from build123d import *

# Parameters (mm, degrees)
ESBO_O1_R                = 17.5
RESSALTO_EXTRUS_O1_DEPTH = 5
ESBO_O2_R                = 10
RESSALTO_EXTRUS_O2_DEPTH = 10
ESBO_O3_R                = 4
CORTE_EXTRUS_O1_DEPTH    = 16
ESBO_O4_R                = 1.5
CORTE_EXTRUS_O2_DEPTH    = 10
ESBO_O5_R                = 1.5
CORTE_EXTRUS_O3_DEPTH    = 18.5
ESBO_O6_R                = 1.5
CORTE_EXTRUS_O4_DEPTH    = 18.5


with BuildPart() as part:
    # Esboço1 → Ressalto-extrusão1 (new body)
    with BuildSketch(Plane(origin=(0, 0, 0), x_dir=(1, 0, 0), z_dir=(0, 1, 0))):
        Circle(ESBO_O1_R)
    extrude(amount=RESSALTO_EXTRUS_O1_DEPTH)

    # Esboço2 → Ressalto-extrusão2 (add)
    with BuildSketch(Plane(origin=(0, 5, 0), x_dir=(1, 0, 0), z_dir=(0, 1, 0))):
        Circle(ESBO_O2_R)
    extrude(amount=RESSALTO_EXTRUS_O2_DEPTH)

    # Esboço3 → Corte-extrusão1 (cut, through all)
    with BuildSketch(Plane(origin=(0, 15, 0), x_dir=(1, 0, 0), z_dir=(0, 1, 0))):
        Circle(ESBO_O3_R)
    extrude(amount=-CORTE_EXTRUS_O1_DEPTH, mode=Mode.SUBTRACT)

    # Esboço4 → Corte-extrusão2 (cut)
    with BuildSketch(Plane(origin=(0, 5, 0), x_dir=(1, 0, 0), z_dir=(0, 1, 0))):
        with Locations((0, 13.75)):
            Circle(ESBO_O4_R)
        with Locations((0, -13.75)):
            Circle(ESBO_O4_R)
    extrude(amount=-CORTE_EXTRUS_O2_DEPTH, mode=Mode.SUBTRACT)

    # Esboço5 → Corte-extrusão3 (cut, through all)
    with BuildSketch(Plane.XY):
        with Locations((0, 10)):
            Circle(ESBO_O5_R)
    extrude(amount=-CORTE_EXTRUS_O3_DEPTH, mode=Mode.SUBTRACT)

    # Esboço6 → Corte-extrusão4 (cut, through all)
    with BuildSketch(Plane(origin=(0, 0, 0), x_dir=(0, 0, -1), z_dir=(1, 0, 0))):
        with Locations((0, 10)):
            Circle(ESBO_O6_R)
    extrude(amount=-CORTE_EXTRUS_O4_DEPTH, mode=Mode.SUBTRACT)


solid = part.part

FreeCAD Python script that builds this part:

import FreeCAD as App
import Part
import Sketcher

V = App.Vector
Q = App.Units.Quantity

doc = App.newDocument("Part")
body = doc.addObject("PartDesign::Body", "Body")

sketch1 = body.newObject("Sketcher::SketchObject", "Sketch")
sketch1.AttachmentSupport = (doc.getObject("XZ_Plane"), [""])
sketch1.MapMode = "FlatFace"
sketch1.addGeometry(Part.Circle(V(0, 0, 0), V(0, 0, 1), 18), False)
sketch1.addConstraint([
    Sketcher.Constraint("Coincident", 0, 3, -1, 1),
    Sketcher.Constraint("Diameter", 0, Q("35 mm")),
])
pad1 = body.newObject("PartDesign::Pad", "Pad")
pad1.Profile = sketch1
pad1.Length = 5
pad1.Reversed = True

sketch2 = body.newObject("Sketcher::SketchObject", "Sketch001")
sketch2.AttachmentSupport = (doc.getObject("XZ_Plane"), [""])
sketch2.MapMode = "FlatFace"
sketch2.AttachmentOffset = App.Placement(V(0, 0, -5), App.Rotation())
sketch2.addGeometry(Part.Circle(V(0, 0, 0), V(0, 0, 1), 10), False)
sketch2.addConstraint([
    Sketcher.Constraint("Coincident", 0, 3, -1, 1),
    Sketcher.Constraint("Diameter", 0, Q("20 mm")),
])
pad2 = body.newObject("PartDesign::Pad", "Pad001")
pad2.Profile = sketch2
pad2.Length = 10
pad2.Reversed = True

sketch3 = body.newObject("Sketcher::SketchObject", "Sketch002")
sketch3.AttachmentSupport = (doc.getObject("XZ_Plane"), [""])
sketch3.MapMode = "FlatFace"
sketch3.AttachmentOffset = App.Placement(V(0, 0, -15), App.Rotation())
sketch3.addGeometry(Part.Circle(V(0, 0, 0), V(0, 0, 1), 4), False)
sketch3.addConstraint([
    Sketcher.Constraint("Coincident", 0, 3, -1, 1),
    Sketcher.Constraint("Diameter", 0, Q("8 mm")),
])
pocket1 = body.newObject("PartDesign::Pocket", "Pocket")
pocket1.Profile = sketch3
pocket1.Type = "ThroughAll"
pocket1.Reversed = True

sketch4 = body.newObject("Sketcher::SketchObject", "Sketch003")
sketch4.AttachmentSupport = (doc.getObject("XZ_Plane"), [""])
sketch4.MapMode = "FlatFace"
sketch4.AttachmentOffset = App.Placement(V(0, 0, -5), App.Rotation())
sketch4.addGeometry([
    Part.Circle(V(0, -13.8, 0), V(0, 0, 1), 1.5),
    Part.Circle(V(0, 13.8, 0), V(0, 0, 1), 1.5),
], False)
sketch4.addConstraint([
    Sketcher.Constraint("Equal", 0, 1),
    Sketcher.Constraint("Symmetric", 0, 3, 1, 3, -1, 1),
    Sketcher.Constraint("PointOnObject", 0, 3, -2),
    Sketcher.Constraint("Diameter", 0, Q("3 mm")),
    Sketcher.Constraint("DistanceY", 0, 3, 1, 3, Q("27.5 mm")),
])
pocket2 = body.newObject("PartDesign::Pocket", "Pocket001")
pocket2.Profile = sketch4
pocket2.Length = 10
pocket2.Reversed = True

sketch5 = body.newObject("Sketcher::SketchObject", "Sketch004")
sketch5.AttachmentSupport = (doc.getObject("XY_Plane"), [""])
sketch5.MapMode = "FlatFace"
sketch5.addGeometry(Part.Circle(V(0, 10, 0), V(0, 0, 1), 1.5), False)
sketch5.addConstraint([
    Sketcher.Constraint("PointOnObject", 0, 3, -2),
    Sketcher.Constraint("Diameter", 0, Q("3 mm")),
    Sketcher.Constraint("DistanceY", -1, 1, 0, 3, Q("10 mm")),
])
pocket3 = body.newObject("PartDesign::Pocket", "Pocket002")
pocket3.Profile = sketch5
pocket3.Type = "ThroughAll"

sketch6 = body.newObject("Sketcher::SketchObject", "Sketch005")
sketch6.AttachmentSupport = (doc.getObject("YZ_Plane"), [""])
sketch6.MapMode = "FlatFace"
sketch6.addGeometry(Part.Circle(V(10, 0, 0), V(0, 0, 1), 1.5), False)
sketch6.addConstraint([
    Sketcher.Constraint("PointOnObject", 0, 3, -1),
    Sketcher.Constraint("Diameter", 0, Q("3 mm")),
    Sketcher.Constraint("DistanceX", -1, 1, 0, 3, Q("10 mm")),
])
pocket4 = body.newObject("PartDesign::Pocket", "Pocket003")
pocket4.Profile = sketch6
pocket4.Type = "ThroughAll"

doc.recompute()
